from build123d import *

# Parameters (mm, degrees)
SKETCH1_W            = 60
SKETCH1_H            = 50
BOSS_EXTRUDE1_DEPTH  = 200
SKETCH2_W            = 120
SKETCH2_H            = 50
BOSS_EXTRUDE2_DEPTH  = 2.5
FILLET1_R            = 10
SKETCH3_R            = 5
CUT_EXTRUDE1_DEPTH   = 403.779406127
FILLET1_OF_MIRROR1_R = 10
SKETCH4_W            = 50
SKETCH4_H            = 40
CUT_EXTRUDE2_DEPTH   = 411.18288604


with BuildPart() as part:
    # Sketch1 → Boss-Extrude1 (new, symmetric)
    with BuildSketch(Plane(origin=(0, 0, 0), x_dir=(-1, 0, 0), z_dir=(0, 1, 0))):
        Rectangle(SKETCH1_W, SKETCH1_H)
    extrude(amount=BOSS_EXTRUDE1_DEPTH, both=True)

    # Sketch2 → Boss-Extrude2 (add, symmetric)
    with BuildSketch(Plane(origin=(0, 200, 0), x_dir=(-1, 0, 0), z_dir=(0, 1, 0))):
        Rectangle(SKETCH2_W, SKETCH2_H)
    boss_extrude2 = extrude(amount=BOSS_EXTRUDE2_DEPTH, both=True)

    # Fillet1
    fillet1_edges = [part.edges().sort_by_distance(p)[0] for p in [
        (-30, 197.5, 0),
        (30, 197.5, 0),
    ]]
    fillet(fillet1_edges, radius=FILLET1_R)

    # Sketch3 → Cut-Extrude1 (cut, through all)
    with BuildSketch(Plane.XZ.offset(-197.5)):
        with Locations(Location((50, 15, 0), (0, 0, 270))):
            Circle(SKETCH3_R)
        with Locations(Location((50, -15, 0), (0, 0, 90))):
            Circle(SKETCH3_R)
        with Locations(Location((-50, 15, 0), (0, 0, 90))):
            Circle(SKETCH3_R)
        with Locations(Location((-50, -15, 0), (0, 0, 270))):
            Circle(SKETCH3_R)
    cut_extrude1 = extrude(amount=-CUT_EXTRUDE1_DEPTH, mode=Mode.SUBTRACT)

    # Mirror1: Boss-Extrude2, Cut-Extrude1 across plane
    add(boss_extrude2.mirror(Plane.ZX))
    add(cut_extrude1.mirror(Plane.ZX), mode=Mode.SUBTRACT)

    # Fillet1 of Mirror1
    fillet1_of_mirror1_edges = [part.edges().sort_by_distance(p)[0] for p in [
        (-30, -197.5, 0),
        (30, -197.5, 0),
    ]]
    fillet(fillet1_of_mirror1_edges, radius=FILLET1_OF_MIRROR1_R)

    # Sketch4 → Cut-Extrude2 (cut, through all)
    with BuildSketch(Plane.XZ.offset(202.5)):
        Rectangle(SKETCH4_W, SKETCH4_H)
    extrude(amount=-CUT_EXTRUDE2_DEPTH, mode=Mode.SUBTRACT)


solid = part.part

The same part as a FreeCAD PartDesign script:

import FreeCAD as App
import Part
import Sketcher
Q = App.Units.Quantity


def edges_at(feature, points):
    """Names of the edges that pass closest to the given points."""
    edges = feature.Shape.Edges
    near = lambda p: min(range(len(edges)), key=lambda i: edges[i].distToShape(Part.Vertex(*p))[0])
    return sorted({f"Edge{near(p) + 1}" for p in points})

doc = App.newDocument("Part")
params = doc.addObject("Spreadsheet::Sheet", "Params")
for row, (alias, value) in enumerate([
    ("sketch1_width", "60 mm"),
    ("sketch1_height", "50 mm"),
    ("pad1_length", "400 mm"),
    ("sketch2_width", "120 mm"),
    ("sketch2_height", "50 mm"),
    ("pad2_length", "5 mm"),
    ("fillet_radius", "10 mm"),
    ("sketch3_diameter", "10 mm"),
    ("fillet2_radius", "10 mm"),
    ("sketch4_width", "50 mm"),
    ("sketch4_height", "40 mm"),
], start=1):
    params.set(f"A{row}", alias)
    params.set(f"B{row}", "=" + value)
    params.setAlias(f"B{row}", alias)

body = doc.addObject("PartDesign::Body", "Body")

# Sketch on XZ plane
sketch1 = body.newObject("Sketcher::SketchObject", "Sketch")
sketch1.AttachmentSupport = (doc.getObject("XZ_Plane"), [""])
sketch1.MapMode = "FlatFace"
sketch1.addGeometry([
    Part.LineSegment(App.Vector(30, 25, 0), App.Vector(30, -25, 0)),
    Part.LineSegment(App.Vector(30, -25, 0), App.Vector(-30, -25, 0)),
    Part.LineSegment(App.Vector(-30, -25, 0), App.Vector(-30, 25, 0)),
    Part.LineSegment(App.Vector(-30, 25, 0), App.Vector(30, 25, 0)),
], False)
sketch1.addConstraint([
    Sketcher.Constraint("Coincident", 0, 2, 1, 1),
    Sketcher.Constraint("Coincident", 1, 2, 2, 1),
    Sketcher.Constraint("Coincident", 2, 2, 3, 1),
    Sketcher.Constraint("Coincident", 3, 2, 0, 1),
    Sketcher.Constraint("Vertical", 0),
    Sketcher.Constraint("Horizontal", 1),
    Sketcher.Constraint("Vertical", 2),
    Sketcher.Constraint("Horizontal", 3),
    Sketcher.Constraint("Symmetric", 0, 2, 2, 2, -1, 1),
    Sketcher.Constraint("DistanceX", 1, 2, 1, 1, Q("60 mm")),
    Sketcher.Constraint("DistanceY", 0, 2, 0, 1, Q("50 mm")),
])
sketch1.setExpression("Constraints[9]", "Params.sketch1_width")
sketch1.setExpression("Constraints[10]", "Params.sketch1_height")
pad1 = body.newObject("PartDesign::Pad", "Pad")
pad1.Profile = sketch1
pad1.setExpression("Length", "Params.pad1_length")
pad1.Midplane = True

# Sketch on XZ plane
sketch2 = body.newObject("Sketcher::SketchObject", "Sketch001")
sketch2.AttachmentSupport = (doc.getObject("XZ_Plane"), [""])
sketch2.MapMode = "FlatFace"
sketch2.AttachmentOffset = App.Placement(App.Vector(0, 0, -200), App.Rotation())
sketch2.addGeometry([
    Part.LineSegment(App.Vector(60, 25, 0), App.Vector(60, -25, 0)),
    Part.LineSegment(App.Vector(60, -25, 0), App.Vector(-60, -25, 0)),
    Part.LineSegment(App.Vector(-60, -25, 0), App.Vector(-60, 25, 0)),
    Part.LineSegment(App.Vector(-60, 25, 0), App.Vector(60, 25, 0)),
], False)
sketch2.addConstraint([
    Sketcher.Constraint("Coincident", 0, 2, 1, 1),
    Sketcher.Constraint("Coincident", 1, 2, 2, 1),
    Sketcher.Constraint("Coincident", 2, 2, 3, 1),
    Sketcher.Constraint("Coincident", 3, 2, 0, 1),
    Sketcher.Constraint("Vertical", 0),
    Sketcher.Constraint("Horizontal", 1),
    Sketcher.Constraint("Vertical", 2),
    Sketcher.Constraint("Horizontal", 3),
    Sketcher.Constraint("Symmetric", 0, 2, 2, 2, -1, 1),
    Sketcher.Constraint("DistanceX", 1, 2, 1, 1, Q("120 mm")),
    Sketcher.Constraint("DistanceY", 0, 2, 0, 1, Q("50 mm")),
])
sketch2.setExpression("Constraints[9]", "Params.sketch2_width")
sketch2.setExpression("Constraints[10]", "Params.sketch2_height")
pad2 = body.newObject("PartDesign::Pad", "Pad001")
pad2.Profile = sketch2
pad2.setExpression("Length", "Params.pad2_length")
pad2.Midplane = True
doc.recompute()

fillet = body.newObject("PartDesign::Fillet", "Fillet")
fillet.Base = (pad2, edges_at(pad2, [(-30, 197.5, 0), (30, 197.5, 0)]))
fillet.setExpression("Radius", "Params.fillet_radius")

# Sketch on XZ plane
sketch3 = body.newObject("Sketcher::SketchObject", "Sketch002")
sketch3.AttachmentSupport = (doc.getObject("XZ_Plane"), [""])
sketch3.MapMode = "FlatFace"
sketch3.AttachmentOffset = App.Placement(App.Vector(0, 0, -197.5), App.Rotation())
sketch3.addGeometry([
    Part.Circle(App.Vector(50, 15, 0), App.Vector(0, 0, 1), 5),
    Part.Circle(App.Vector(50, -15, 0), App.Vector(0, 0, 1), 5),
    Part.Circle(App.Vector(-50, 15, 0), App.Vector(0, 0, 1), 5),
    Part.Circle(App.Vector(-50, -15, 0), App.Vector(0, 0, 1), 5),
], False)
sketch3.addConstraint([
    Sketcher.Constraint("Equal", 0, 1),
    Sketcher.Constraint("Equal", 1, 2),
    Sketcher.Constraint("Equal", 2, 3),
    Sketcher.Constraint("Symmetric", 1, 3, 2, 3, -1, 1),
    Sketcher.Constraint("Symmetric", 0, 3, 3, 3, -1, 1),
    Sketcher.Constraint("Symmetric", 0, 3, 2, 3, -2),
    Sketcher.Constraint("Diameter", 0, Q("10 mm")),
    Sketcher.Constraint("DistanceX", -1, 1, 0, 3, Q("50 mm")),
    Sketcher.Constraint("DistanceY", -1, 1, 0, 3, Q("15 mm")),
])
sketch3.setExpression("Constraints[6]", "Params.sketch3_diameter")
pocket1 = body.newObject("PartDesign::Pocket", "Pocket")
pocket1.Profile = sketch3
pocket1.Type = "ThroughAll"
doc.recompute()

mirrored = body.newObject("PartDesign::Mirrored", "Mirrored")
mirrored.Originals = [pad2, pocket1]
mirrored.MirrorPlane = (doc.getObject("XZ_Plane"), [""])
body.Tip = mirrored
doc.recompute()

fillet2 = body.newObject("PartDesign::Fillet", "Fillet001")
fillet2.Base = (mirrored, edges_at(mirrored, [(-30, -197.5, 0), (30, -197.5, 0)]))
fillet2.setExpression("Radius", "Params.fillet2_radius")

# Sketch on XZ plane
sketch4 = body.newObject("Sketcher::SketchObject", "Sketch003")
sketch4.AttachmentSupport = (doc.getObject("XZ_Plane"), [""])
sketch4.MapMode = "FlatFace"
sketch4.AttachmentOffset = App.Placement(App.Vector(0, 0, 202.5), App.Rotation())
sketch4.addGeometry([
    Part.LineSegment(App.Vector(-25, 20, 0), App.Vector(-25, -20, 0)),
    Part.LineSegment(App.Vector(-25, -20, 0), App.Vector(25, -20, 0)),
    Part.LineSegment(App.Vector(25, -20, 0), App.Vector(25, 20, 0)),
    Part.LineSegment(App.Vector(25, 20, 0), App.Vector(-25, 20, 0)),
], False)
sketch4.addConstraint([
    Sketcher.Constraint("Coincident", 0, 2, 1, 1),
    Sketcher.Constraint("Coincident", 1, 2, 2, 1),
    Sketcher.Constraint("Coincident", 2, 2, 3, 1),
    Sketcher.Constraint("Coincident", 3, 2, 0, 1),
    Sketcher.Constraint("Vertical", 0),
    Sketcher.Constraint("Horizontal", 1),
    Sketcher.Constraint("Vertical", 2),
    Sketcher.Constraint("Horizontal", 3),
    Sketcher.Constraint("Symmetric", 0, 2, 2, 2, -1, 1),
    Sketcher.Constraint("DistanceX", 1, 1, 1, 2, Q("50 mm")),
    Sketcher.Constraint("DistanceY", 0, 2, 0, 1, Q("40 mm")),
])
sketch4.setExpression("Constraints[9]", "Params.sketch4_width")
sketch4.setExpression("Constraints[10]", "Params.sketch4_height")
pocket2 = body.newObject("PartDesign::Pocket", "Pocket001")
pocket2.Profile = sketch4
pocket2.Type = "ThroughAll"

doc.recompute()
